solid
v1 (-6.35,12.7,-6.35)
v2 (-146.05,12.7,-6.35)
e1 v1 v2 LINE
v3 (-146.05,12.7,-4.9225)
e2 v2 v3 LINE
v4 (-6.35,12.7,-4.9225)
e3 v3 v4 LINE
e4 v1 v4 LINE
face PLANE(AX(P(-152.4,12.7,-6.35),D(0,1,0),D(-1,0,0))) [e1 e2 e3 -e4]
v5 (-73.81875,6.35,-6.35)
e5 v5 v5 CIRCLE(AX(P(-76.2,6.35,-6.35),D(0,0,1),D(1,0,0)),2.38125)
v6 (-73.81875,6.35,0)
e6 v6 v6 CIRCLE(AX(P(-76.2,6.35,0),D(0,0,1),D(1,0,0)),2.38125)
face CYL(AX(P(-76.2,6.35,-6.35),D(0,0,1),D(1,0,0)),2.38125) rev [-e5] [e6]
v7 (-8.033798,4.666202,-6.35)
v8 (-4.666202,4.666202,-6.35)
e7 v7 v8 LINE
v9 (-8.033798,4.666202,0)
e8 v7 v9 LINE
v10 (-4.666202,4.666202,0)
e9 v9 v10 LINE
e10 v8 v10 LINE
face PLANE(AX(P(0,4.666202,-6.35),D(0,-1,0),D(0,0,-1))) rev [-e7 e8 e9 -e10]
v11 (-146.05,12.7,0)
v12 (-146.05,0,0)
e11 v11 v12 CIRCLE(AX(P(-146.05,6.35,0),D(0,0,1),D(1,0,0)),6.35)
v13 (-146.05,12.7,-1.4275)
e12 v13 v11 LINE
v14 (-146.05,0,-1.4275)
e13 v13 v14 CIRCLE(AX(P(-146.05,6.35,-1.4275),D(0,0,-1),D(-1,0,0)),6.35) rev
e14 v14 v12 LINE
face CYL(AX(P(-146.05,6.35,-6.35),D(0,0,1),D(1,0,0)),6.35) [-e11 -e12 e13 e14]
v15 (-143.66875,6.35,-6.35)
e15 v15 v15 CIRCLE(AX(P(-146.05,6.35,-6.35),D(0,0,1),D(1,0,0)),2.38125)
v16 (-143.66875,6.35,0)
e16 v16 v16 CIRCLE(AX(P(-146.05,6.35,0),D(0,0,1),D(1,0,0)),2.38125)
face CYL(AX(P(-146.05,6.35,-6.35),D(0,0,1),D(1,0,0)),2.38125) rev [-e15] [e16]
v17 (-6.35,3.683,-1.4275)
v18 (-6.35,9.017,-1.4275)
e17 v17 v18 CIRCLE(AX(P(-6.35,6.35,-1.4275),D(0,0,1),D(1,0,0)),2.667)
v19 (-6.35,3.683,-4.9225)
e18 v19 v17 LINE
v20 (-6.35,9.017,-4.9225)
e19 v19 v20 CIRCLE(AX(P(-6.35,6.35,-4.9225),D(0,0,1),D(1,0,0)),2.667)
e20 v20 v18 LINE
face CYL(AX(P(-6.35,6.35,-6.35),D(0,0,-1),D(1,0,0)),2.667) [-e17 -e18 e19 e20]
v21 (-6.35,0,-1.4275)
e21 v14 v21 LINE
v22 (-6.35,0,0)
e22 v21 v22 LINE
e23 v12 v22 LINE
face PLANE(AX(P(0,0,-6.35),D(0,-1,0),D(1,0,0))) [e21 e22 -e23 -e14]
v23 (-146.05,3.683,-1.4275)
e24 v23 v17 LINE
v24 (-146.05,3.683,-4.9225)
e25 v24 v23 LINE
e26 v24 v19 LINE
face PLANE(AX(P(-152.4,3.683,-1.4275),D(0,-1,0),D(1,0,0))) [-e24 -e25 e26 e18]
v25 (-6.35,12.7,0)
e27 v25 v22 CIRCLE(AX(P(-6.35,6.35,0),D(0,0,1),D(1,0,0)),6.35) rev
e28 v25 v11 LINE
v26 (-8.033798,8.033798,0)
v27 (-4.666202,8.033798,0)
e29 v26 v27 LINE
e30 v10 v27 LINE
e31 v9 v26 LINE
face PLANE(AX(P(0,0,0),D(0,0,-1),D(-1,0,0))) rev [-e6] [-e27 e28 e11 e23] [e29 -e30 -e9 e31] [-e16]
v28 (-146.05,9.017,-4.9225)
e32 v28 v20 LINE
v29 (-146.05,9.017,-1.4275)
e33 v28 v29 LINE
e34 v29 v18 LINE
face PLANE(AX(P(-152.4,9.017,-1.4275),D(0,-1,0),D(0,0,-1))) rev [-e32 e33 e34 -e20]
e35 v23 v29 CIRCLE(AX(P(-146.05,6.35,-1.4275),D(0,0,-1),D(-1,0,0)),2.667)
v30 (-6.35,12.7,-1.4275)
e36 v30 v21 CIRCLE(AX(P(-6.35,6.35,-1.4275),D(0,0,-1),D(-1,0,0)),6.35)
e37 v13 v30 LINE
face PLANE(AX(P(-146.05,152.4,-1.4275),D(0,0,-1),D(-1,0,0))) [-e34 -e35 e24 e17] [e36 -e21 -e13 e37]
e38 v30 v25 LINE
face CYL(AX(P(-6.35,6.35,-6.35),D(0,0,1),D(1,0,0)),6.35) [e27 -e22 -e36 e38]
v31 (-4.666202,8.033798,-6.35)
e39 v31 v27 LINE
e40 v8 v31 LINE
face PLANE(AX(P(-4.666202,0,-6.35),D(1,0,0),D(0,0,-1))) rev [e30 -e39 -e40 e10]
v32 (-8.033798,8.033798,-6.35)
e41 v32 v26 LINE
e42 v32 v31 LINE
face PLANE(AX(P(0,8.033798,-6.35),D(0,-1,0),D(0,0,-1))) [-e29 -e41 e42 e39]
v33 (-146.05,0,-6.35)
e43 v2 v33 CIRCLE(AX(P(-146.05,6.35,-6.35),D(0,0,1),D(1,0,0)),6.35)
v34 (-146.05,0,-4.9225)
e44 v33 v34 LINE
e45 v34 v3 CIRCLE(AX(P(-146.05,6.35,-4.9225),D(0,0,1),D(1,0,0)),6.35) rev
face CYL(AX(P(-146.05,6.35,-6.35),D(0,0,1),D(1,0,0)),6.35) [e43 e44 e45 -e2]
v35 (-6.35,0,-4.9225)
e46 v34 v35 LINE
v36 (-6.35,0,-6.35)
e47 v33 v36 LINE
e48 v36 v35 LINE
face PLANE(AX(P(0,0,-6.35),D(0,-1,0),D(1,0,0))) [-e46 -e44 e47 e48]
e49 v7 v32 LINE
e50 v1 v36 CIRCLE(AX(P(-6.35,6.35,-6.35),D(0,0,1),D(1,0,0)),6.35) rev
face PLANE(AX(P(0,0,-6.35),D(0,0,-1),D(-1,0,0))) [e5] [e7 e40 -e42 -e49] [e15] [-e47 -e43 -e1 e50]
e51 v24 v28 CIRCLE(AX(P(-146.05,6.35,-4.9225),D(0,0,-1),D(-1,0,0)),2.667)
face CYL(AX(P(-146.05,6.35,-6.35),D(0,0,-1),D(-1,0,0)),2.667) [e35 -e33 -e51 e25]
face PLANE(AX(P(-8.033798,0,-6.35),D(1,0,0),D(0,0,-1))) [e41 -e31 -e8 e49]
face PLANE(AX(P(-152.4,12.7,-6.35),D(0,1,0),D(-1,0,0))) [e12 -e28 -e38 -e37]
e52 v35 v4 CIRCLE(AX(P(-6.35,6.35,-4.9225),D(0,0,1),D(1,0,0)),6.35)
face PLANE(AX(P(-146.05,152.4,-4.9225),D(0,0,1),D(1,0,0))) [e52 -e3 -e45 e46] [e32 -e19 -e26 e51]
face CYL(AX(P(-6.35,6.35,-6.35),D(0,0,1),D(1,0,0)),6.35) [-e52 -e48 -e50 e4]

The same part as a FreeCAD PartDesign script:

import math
import FreeCAD as App
import Part
import Sketcher

V = App.Vector
Q = App.Units.Quantity


def add_polygon(sketch, points):
    """Adds a closed chain of lines whose ends are joined by coincident constraints."""
    first, n = sketch.GeometryCount, len(points)
    for a, b in zip(points, points[1:] + points[:1]):
        sketch.addGeometry(Part.LineSegment(App.Vector(*a, 0), App.Vector(*b, 0)), False)
    for i in range(n):
        sketch.addConstraint(Sketcher.Constraint("Coincident", first + i, 2, first + (i + 1) % n, 1))

doc = App.newDocument("Part")
body = doc.addObject("PartDesign::Body", "Body")

sketch1 = body.newObject("Sketcher::SketchObject", "Sketch")
sketch1.AttachmentSupport = (doc.getObject("XY_Plane"), [""])
sketch1.MapMode = "FlatFace"
add_polygon(sketch1, [(-152, 13), (-152, 0), (0, 0), (0, 13)])
sketch1.addConstraint(Sketcher.Constraint("Vertical", 0))
sketch1.addConstraint(Sketcher.Constraint("Horizontal", 1))
sketch1.addConstraint(Sketcher.Constraint("Vertical", 2))
sketch1.addConstraint(Sketcher.Constraint("Horizontal", 3))
sketch1.addConstraint(Sketcher.Constraint("Coincident", 1, 2, -1, 1))
sketch1.addConstraint(Sketcher.Constraint("DistanceX", 1, 1, 1, 2, Q("6 in")))
sketch1.addConstraint(Sketcher.Constraint("DistanceY", 0, 2, 0, 1, Q("0.5 in")))
pad1 = body.newObject("PartDesign::Pad", "Pad")
pad1.Profile = sketch1
pad1.Length = Q("0.25 in")
pad1.Reversed = True

sketch2 = body.newObject("Sketcher::SketchObject", "Sketch001")
sketch2.AttachmentSupport = (doc.getObject("XY_Plane"), [""])
sketch2.MapMode = "FlatFace"
sketch2.addGeometry(Part.Circle(V(-146.1, 6.3, 0), V(0, 0, 1), 2.4), False)
sketch2.addGeometry(Part.Circle(V(-76.2, 6.3, 0), V(0, 0, 1), 2.4), False)
sketch2.addGeometry(Part.LineSegment(V(0, 12.7, 0), V(-6.3, 12.7, 0)), False)
sketch2.addGeometry(Part.ArcOfCircle(Part.Circle(V(-6.3, 6.4, 0), V(0, 0, 1), 6.3), math.radians(0), math.radians(90)), False)
sketch2.addGeometry(Part.LineSegment(V(0, 6.3, 0), V(0, 12.7, 0)), False)
sketch2.addGeometry(Part.LineSegment(V(0, 0, 0), V(0, 6.3, 0)), False)
sketch2.addGeometry(Part.ArcOfCircle(Part.Circle(V(-6.3, 6.3, 0), V(0, 0, 1), 6.3), math.radians(-90), math.radians(0)), False)
sketch2.addGeometry(Part.LineSegment(V(-6.3, 0, 0), V(0, 0, 0)), False)
sketch2.addGeometry(Part.ArcOfCircle(Part.Circle(V(-146.1, 6.4, 0), V(0, 0, 1), 6.3), math.radians(90), math.radians(180)), False)
sketch2.addGeometry(Part.LineSegment(V(-146.1, 12.7, 0), V(-152.4, 12.7, 0)), False)
sketch2.addGeometry(Part.LineSegment(V(-152.4, 12.7, 0), V(-152.4, 6.3, 0)), False)
sketch2.addGeometry(Part.ArcOfCircle(Part.Circle(V(-146.1, 6.3, 0), V(0, 0, 1), 6.3), math.radians(180), math.radians(270)), False)
sketch2.addGeometry(Part.LineSegment(V(-152.4, 6.3, 0), V(-152.4, 0, 0)), False)
sketch2.addGeometry(Part.LineSegment(V(-152.4, 0, 0), V(-146.1, 0, 0)), False)
add_polygon(sketch2, [(-8, 8), (-8, 4.7), (-4.7, 4.7), (-4.7, 8)])
sketch2.addConstraint(Sketcher.Constraint("Tangent", 2, 2, 3, 2))
sketch2.addConstraint(Sketcher.Constraint("Tangent", 3, 1, 4, 1))
sketch2.addConstraint(Sketcher.Constraint("Coincident", 4, 2, 2, 1))
sketch2.addConstraint(Sketcher.Constraint("Tangent", 5, 2, 6, 2))
sketch2.addConstraint(Sketcher.Constraint("Tangent", 6, 1, 7, 1))
sketch2.addConstraint(Sketcher.Constraint("Coincident", 7, 2, 5, 1))
sketch2.addConstraint(Sketcher.Constraint("Tangent", 8, 1, 9, 1))
sketch2.addConstraint(Sketcher.Constraint("Coincident", 9, 2, 10, 1))
sketch2.addConstraint(Sketcher.Constraint("Tangent", 10, 2, 8, 2))
sketch2.addConstraint(Sketcher.Constraint("Tangent", 11, 1, 12, 1))
sketch2.addConstraint(Sketcher.Constraint("Coincident", 12, 2, 13, 1))
sketch2.addConstraint(Sketcher.Constraint("Tangent", 13, 2, 11, 2))
sketch2.addConstraint(Sketcher.Constraint("Horizontal", 2))
sketch2.addConstraint(Sketcher.Constraint("Vertical", 4))
sketch2.addConstraint(Sketcher.Constraint("Vertical", 5))
sketch2.addConstraint(Sketcher.Constraint("Horizontal", 7))
sketch2.addConstraint(Sketcher.Constraint("Horizontal", 9))
sketch2.addConstraint(Sketcher.Constraint("Vertical", 10))
sketch2.addConstraint(Sketcher.Constraint("Vertical", 12))
sketch2.addConstraint(Sketcher.Constraint("Horizontal", 13))
sketch2.addConstraint(Sketcher.Constraint("Vertical", 14))
sketch2.addConstraint(Sketcher.Constraint("Horizontal", 15))
sketch2.addConstraint(Sketcher.Constraint("Vertical", 16))
sketch2.addConstraint(Sketcher.Constraint("Horizontal", 17))
sketch2.addConstraint(Sketcher.Constraint("Coincident", 7, 2, -1, 1))
sketch2.addConstraint(Sketcher.Constraint("Coincident", 6, 3, 3, 3))
sketch2.addConstraint(Sketcher.Constraint("Coincident", 8, 3, 0, 3))
sketch2.addConstraint(Sketcher.Constraint("Coincident", 11, 3, 0, 3))
sketch2.addConstraint(Sketcher.Constraint("Equal", 0, 1))
sketch2.addConstraint(Sketcher.Constraint("Equal", 3, 6))
sketch2.addConstraint(Sketcher.Constraint("Equal", 6, 8))
sketch2.addConstraint(Sketcher.Constraint("Equal", 8, 11))
sketch2.addConstraint(Sketcher.Constraint("PointOnObject", 12, 2, -1))
sketch2.addConstraint(Sketcher.Constraint("Horizontal", 0, 3, 1, 3))
sketch2.addConstraint(Sketcher.Constraint("Equal", 17, 14))
sketch2.addConstraint(Sketcher.Constraint("Radius", 3, Q("0.25 in")))
sketch2.addConstraint(Sketcher.Constraint("Diameter", 0, Q("0.1875 in")))
sketch2.addConstraint(Sketcher.Constraint("DistanceX", 1, 3, -1, 1, Q("3 in")))
sketch2.addConstraint(Sketcher.Constraint("DistanceX", 9, 2, -1, 1, Q("6 in")))
sketch2.addConstraint(Sketcher.Constraint("DistanceX", 14, 2, -1, 1, Q("8.033798 mm")))
sketch2.addConstraint(Sketcher.Constraint("DistanceY", -1, 1, 14, 2, Q("4.666202 mm")))
sketch2.addConstraint(Sketcher.Constraint("DistanceX", 15, 2, -1, 1, Q("4.666202 mm")))
pocket1 = body.newObject("PartDesign::Pocket", "Pocket")
pocket1.Profile = sketch2
pocket1.Length = 154.060029

sketch3 = body.newObject("Sketcher::SketchObject", "Sketch002")
sketch3.AttachmentSupport = (doc.getObject("XZ_Plane"), [""])
sketch3.MapMode = "FlatFace"
sketch3.AttachmentOffset = App.Placement(V(0, 0, -0.25 * 25.4), App.Rotation())
add_polygon(sketch3, [(-166.6, -1.4), (-148.7, -1.4), (-148.7, -4.9), (-166.6, -4.9)])
sketch3.addGeometry(Part.LineSegment(V(-146.1, -4.9, 0), V(-146.1, -1.4, 0)), True)
sketch3.addConstraint(Sketcher.Constraint("Horizontal", 0))
sketch3.addConstraint(Sketcher.Constraint("Vertical", 1))
sketch3.addConstraint(Sketcher.Constraint("Horizontal", 2))
sketch3.addConstraint(Sketcher.Constraint("Vertical", 3))
sketch3.addConstraint(Sketcher.Constraint("Vertical", 4))
sketch3.addConstraint(Sketcher.Constraint("Horizontal", 2, 2, 4, 1))
sketch3.addConstraint(Sketcher.Constraint("Horizontal", 3, 2, 4, 2))
sketch3.addConstraint(Sketcher.Constraint("DistanceX", 4, 1, -1, 1, Q("5.75 in")))
sketch3.addConstraint(Sketcher.Constraint("DistanceX", 0, 2, -1, 1, Q("5.855 in")))
sketch3.addConstraint(Sketcher.Constraint("DistanceY", 1, 2, 1, 1, Q("3.495 mm")))
sketch3.addConstraint(Sketcher.Constraint("DistanceY", 0, 2, -1, 1, Q("1.4275 mm")))
sketch3.addConstraint(Sketcher.Constraint("DistanceX", 0, 1, 0, 2, Q("17.853765 mm")))
groove = body.newObject("PartDesign::Groove", "Groove")
groove.Profile = sketch3
groove.ReferenceAxis = (sketch3, ["Axis0"])
groove.Angle = 90

sketch4 = body.newObject("Sketcher::SketchObject", "Sketch003")
sketch4.AttachmentSupport = (doc.getObject("XZ_Plane"), [""])
sketch4.MapMode = "FlatFace"
sketch4.AttachmentOffset = App.Placement(V(0, 0, -0.25 * 25.4), App.Rotation())
add_polygon(sketch4, [(-166.6, -1.4), (-148.7, -1.4), (-148.7, -4.9), (-166.6, -4.9)])
sketch4.addGeometry(Part.LineSegment(V(-146.1, -1.4, 0), V(-146.1, -4.9, 0)), True)
sketch4.addConstraint(Sketcher.Constraint("Horizontal", 0))
sketch4.addConstraint(Sketcher.Constraint("Vertical", 1))
sketch4.addConstraint(Sketcher.Constraint("Horizontal", 2))
sketch4.addConstraint(Sketcher.Constraint("Vertical", 3))
sketch4.addConstraint(Sketcher.Constraint("Vertical", 4))
sketch4.addConstraint(Sketcher.Constraint("Horizontal", 3, 2, 4, 1))
sketch4.addConstraint(Sketcher.Constraint("Horizontal", 2, 2, 4, 2))
sketch4.addConstraint(Sketcher.Constraint("DistanceX", 4, 1, -1, 1, Q("5.75 in")))
sketch4.addConstraint(Sketcher.Constraint("DistanceX", 0, 2, -1, 1, Q("5.855 in")))
sketch4.addConstraint(Sketcher.Constraint("DistanceY", 1, 2, 1, 1, Q("3.495 mm")))
sketch4.addConstraint(Sketcher.Constraint("DistanceY", 0, 2, -1, 1, Q("1.4275 mm")))
sketch4.addConstraint(Sketcher.Constraint("DistanceX", 0, 1, 0, 2, Q("17.853765 mm")))
groove2 = body.newObject("PartDesign::Groove", "Groove001")
groove2.Profile = sketch4
groove2.ReferenceAxis = (sketch4, ["Axis0"])
groove2.Angle = 90
doc.recompute()

datumplane = body.newObject("PartDesign::Plane", "DatumPlane")
datumplane.AttachmentSupport = (doc.getObject("YZ_Plane"), [""])
datumplane.MapMode = "FlatFace"
datumplane.AttachmentOffset = App.Placement(V(0, 0, -3 * 25.4), App.Rotation())
mirrored = body.newObject("PartDesign::Mirrored", "Mirrored")
mirrored.Originals = [groove, groove2]
mirrored.MirrorPlane = (datumplane, [""])
body.Tip = mirrored

sketch5 = body.newObject("Sketcher::SketchObject", "Sketch004")
sketch5.AttachmentSupport = (doc.getObject("YZ_Plane"), [""])
sketch5.MapMode = "FlatFace"
add_polygon(sketch5, [(12.7, -1.4), (9, -1.4), (9, -4.9), (12.7, -4.9)])
sketch5.addConstraint(Sketcher.Constraint("Horizontal", 0))
sketch5.addConstraint(Sketcher.Constraint("Vertical", 1))
sketch5.addConstraint(Sketcher.Constraint("Horizontal", 2))
sketch5.addConstraint(Sketcher.Constraint("Vertical", 3))
sketch5.addConstraint(Sketcher.Constraint("DistanceX", -1, 1, 2, 2, Q("0.5 in")))
sketch5.addConstraint(Sketcher.Constraint("DistanceX", 0, 2, 0, 1, Q("0.145 in")))
sketch5.addConstraint(Sketcher.Constraint("DistanceY", 1, 2, 1, 1, Q("3.495 mm")))
sketch5.addConstraint(Sketcher.Constraint("DistanceY", 0, 2, -1, 1, Q("1.4275 mm")))
pocket2 = body.newObject("PartDesign::Pocket", "Pocket001")
pocket2.Profile = sketch5
pocket2.Type = "ThroughAll"
doc.recompute()

datumplane2 = body.newObject("PartDesign::Plane", "DatumPlane001")
datumplane2.AttachmentSupport = (doc.getObject("XZ_Plane"), [""])
datumplane2.MapMode = "FlatFace"
datumplane2.AttachmentOffset = App.Placement(V(0, 0, -0.25 * 25.4), App.Rotation())
mirrored2 = body.newObject("PartDesign::Mirrored", "Mirrored001")
mirrored2.Originals = [pocket2]
mirrored2.MirrorPlane = (datumplane2, [""])
body.Tip = mirrored2

doc.recompute()
